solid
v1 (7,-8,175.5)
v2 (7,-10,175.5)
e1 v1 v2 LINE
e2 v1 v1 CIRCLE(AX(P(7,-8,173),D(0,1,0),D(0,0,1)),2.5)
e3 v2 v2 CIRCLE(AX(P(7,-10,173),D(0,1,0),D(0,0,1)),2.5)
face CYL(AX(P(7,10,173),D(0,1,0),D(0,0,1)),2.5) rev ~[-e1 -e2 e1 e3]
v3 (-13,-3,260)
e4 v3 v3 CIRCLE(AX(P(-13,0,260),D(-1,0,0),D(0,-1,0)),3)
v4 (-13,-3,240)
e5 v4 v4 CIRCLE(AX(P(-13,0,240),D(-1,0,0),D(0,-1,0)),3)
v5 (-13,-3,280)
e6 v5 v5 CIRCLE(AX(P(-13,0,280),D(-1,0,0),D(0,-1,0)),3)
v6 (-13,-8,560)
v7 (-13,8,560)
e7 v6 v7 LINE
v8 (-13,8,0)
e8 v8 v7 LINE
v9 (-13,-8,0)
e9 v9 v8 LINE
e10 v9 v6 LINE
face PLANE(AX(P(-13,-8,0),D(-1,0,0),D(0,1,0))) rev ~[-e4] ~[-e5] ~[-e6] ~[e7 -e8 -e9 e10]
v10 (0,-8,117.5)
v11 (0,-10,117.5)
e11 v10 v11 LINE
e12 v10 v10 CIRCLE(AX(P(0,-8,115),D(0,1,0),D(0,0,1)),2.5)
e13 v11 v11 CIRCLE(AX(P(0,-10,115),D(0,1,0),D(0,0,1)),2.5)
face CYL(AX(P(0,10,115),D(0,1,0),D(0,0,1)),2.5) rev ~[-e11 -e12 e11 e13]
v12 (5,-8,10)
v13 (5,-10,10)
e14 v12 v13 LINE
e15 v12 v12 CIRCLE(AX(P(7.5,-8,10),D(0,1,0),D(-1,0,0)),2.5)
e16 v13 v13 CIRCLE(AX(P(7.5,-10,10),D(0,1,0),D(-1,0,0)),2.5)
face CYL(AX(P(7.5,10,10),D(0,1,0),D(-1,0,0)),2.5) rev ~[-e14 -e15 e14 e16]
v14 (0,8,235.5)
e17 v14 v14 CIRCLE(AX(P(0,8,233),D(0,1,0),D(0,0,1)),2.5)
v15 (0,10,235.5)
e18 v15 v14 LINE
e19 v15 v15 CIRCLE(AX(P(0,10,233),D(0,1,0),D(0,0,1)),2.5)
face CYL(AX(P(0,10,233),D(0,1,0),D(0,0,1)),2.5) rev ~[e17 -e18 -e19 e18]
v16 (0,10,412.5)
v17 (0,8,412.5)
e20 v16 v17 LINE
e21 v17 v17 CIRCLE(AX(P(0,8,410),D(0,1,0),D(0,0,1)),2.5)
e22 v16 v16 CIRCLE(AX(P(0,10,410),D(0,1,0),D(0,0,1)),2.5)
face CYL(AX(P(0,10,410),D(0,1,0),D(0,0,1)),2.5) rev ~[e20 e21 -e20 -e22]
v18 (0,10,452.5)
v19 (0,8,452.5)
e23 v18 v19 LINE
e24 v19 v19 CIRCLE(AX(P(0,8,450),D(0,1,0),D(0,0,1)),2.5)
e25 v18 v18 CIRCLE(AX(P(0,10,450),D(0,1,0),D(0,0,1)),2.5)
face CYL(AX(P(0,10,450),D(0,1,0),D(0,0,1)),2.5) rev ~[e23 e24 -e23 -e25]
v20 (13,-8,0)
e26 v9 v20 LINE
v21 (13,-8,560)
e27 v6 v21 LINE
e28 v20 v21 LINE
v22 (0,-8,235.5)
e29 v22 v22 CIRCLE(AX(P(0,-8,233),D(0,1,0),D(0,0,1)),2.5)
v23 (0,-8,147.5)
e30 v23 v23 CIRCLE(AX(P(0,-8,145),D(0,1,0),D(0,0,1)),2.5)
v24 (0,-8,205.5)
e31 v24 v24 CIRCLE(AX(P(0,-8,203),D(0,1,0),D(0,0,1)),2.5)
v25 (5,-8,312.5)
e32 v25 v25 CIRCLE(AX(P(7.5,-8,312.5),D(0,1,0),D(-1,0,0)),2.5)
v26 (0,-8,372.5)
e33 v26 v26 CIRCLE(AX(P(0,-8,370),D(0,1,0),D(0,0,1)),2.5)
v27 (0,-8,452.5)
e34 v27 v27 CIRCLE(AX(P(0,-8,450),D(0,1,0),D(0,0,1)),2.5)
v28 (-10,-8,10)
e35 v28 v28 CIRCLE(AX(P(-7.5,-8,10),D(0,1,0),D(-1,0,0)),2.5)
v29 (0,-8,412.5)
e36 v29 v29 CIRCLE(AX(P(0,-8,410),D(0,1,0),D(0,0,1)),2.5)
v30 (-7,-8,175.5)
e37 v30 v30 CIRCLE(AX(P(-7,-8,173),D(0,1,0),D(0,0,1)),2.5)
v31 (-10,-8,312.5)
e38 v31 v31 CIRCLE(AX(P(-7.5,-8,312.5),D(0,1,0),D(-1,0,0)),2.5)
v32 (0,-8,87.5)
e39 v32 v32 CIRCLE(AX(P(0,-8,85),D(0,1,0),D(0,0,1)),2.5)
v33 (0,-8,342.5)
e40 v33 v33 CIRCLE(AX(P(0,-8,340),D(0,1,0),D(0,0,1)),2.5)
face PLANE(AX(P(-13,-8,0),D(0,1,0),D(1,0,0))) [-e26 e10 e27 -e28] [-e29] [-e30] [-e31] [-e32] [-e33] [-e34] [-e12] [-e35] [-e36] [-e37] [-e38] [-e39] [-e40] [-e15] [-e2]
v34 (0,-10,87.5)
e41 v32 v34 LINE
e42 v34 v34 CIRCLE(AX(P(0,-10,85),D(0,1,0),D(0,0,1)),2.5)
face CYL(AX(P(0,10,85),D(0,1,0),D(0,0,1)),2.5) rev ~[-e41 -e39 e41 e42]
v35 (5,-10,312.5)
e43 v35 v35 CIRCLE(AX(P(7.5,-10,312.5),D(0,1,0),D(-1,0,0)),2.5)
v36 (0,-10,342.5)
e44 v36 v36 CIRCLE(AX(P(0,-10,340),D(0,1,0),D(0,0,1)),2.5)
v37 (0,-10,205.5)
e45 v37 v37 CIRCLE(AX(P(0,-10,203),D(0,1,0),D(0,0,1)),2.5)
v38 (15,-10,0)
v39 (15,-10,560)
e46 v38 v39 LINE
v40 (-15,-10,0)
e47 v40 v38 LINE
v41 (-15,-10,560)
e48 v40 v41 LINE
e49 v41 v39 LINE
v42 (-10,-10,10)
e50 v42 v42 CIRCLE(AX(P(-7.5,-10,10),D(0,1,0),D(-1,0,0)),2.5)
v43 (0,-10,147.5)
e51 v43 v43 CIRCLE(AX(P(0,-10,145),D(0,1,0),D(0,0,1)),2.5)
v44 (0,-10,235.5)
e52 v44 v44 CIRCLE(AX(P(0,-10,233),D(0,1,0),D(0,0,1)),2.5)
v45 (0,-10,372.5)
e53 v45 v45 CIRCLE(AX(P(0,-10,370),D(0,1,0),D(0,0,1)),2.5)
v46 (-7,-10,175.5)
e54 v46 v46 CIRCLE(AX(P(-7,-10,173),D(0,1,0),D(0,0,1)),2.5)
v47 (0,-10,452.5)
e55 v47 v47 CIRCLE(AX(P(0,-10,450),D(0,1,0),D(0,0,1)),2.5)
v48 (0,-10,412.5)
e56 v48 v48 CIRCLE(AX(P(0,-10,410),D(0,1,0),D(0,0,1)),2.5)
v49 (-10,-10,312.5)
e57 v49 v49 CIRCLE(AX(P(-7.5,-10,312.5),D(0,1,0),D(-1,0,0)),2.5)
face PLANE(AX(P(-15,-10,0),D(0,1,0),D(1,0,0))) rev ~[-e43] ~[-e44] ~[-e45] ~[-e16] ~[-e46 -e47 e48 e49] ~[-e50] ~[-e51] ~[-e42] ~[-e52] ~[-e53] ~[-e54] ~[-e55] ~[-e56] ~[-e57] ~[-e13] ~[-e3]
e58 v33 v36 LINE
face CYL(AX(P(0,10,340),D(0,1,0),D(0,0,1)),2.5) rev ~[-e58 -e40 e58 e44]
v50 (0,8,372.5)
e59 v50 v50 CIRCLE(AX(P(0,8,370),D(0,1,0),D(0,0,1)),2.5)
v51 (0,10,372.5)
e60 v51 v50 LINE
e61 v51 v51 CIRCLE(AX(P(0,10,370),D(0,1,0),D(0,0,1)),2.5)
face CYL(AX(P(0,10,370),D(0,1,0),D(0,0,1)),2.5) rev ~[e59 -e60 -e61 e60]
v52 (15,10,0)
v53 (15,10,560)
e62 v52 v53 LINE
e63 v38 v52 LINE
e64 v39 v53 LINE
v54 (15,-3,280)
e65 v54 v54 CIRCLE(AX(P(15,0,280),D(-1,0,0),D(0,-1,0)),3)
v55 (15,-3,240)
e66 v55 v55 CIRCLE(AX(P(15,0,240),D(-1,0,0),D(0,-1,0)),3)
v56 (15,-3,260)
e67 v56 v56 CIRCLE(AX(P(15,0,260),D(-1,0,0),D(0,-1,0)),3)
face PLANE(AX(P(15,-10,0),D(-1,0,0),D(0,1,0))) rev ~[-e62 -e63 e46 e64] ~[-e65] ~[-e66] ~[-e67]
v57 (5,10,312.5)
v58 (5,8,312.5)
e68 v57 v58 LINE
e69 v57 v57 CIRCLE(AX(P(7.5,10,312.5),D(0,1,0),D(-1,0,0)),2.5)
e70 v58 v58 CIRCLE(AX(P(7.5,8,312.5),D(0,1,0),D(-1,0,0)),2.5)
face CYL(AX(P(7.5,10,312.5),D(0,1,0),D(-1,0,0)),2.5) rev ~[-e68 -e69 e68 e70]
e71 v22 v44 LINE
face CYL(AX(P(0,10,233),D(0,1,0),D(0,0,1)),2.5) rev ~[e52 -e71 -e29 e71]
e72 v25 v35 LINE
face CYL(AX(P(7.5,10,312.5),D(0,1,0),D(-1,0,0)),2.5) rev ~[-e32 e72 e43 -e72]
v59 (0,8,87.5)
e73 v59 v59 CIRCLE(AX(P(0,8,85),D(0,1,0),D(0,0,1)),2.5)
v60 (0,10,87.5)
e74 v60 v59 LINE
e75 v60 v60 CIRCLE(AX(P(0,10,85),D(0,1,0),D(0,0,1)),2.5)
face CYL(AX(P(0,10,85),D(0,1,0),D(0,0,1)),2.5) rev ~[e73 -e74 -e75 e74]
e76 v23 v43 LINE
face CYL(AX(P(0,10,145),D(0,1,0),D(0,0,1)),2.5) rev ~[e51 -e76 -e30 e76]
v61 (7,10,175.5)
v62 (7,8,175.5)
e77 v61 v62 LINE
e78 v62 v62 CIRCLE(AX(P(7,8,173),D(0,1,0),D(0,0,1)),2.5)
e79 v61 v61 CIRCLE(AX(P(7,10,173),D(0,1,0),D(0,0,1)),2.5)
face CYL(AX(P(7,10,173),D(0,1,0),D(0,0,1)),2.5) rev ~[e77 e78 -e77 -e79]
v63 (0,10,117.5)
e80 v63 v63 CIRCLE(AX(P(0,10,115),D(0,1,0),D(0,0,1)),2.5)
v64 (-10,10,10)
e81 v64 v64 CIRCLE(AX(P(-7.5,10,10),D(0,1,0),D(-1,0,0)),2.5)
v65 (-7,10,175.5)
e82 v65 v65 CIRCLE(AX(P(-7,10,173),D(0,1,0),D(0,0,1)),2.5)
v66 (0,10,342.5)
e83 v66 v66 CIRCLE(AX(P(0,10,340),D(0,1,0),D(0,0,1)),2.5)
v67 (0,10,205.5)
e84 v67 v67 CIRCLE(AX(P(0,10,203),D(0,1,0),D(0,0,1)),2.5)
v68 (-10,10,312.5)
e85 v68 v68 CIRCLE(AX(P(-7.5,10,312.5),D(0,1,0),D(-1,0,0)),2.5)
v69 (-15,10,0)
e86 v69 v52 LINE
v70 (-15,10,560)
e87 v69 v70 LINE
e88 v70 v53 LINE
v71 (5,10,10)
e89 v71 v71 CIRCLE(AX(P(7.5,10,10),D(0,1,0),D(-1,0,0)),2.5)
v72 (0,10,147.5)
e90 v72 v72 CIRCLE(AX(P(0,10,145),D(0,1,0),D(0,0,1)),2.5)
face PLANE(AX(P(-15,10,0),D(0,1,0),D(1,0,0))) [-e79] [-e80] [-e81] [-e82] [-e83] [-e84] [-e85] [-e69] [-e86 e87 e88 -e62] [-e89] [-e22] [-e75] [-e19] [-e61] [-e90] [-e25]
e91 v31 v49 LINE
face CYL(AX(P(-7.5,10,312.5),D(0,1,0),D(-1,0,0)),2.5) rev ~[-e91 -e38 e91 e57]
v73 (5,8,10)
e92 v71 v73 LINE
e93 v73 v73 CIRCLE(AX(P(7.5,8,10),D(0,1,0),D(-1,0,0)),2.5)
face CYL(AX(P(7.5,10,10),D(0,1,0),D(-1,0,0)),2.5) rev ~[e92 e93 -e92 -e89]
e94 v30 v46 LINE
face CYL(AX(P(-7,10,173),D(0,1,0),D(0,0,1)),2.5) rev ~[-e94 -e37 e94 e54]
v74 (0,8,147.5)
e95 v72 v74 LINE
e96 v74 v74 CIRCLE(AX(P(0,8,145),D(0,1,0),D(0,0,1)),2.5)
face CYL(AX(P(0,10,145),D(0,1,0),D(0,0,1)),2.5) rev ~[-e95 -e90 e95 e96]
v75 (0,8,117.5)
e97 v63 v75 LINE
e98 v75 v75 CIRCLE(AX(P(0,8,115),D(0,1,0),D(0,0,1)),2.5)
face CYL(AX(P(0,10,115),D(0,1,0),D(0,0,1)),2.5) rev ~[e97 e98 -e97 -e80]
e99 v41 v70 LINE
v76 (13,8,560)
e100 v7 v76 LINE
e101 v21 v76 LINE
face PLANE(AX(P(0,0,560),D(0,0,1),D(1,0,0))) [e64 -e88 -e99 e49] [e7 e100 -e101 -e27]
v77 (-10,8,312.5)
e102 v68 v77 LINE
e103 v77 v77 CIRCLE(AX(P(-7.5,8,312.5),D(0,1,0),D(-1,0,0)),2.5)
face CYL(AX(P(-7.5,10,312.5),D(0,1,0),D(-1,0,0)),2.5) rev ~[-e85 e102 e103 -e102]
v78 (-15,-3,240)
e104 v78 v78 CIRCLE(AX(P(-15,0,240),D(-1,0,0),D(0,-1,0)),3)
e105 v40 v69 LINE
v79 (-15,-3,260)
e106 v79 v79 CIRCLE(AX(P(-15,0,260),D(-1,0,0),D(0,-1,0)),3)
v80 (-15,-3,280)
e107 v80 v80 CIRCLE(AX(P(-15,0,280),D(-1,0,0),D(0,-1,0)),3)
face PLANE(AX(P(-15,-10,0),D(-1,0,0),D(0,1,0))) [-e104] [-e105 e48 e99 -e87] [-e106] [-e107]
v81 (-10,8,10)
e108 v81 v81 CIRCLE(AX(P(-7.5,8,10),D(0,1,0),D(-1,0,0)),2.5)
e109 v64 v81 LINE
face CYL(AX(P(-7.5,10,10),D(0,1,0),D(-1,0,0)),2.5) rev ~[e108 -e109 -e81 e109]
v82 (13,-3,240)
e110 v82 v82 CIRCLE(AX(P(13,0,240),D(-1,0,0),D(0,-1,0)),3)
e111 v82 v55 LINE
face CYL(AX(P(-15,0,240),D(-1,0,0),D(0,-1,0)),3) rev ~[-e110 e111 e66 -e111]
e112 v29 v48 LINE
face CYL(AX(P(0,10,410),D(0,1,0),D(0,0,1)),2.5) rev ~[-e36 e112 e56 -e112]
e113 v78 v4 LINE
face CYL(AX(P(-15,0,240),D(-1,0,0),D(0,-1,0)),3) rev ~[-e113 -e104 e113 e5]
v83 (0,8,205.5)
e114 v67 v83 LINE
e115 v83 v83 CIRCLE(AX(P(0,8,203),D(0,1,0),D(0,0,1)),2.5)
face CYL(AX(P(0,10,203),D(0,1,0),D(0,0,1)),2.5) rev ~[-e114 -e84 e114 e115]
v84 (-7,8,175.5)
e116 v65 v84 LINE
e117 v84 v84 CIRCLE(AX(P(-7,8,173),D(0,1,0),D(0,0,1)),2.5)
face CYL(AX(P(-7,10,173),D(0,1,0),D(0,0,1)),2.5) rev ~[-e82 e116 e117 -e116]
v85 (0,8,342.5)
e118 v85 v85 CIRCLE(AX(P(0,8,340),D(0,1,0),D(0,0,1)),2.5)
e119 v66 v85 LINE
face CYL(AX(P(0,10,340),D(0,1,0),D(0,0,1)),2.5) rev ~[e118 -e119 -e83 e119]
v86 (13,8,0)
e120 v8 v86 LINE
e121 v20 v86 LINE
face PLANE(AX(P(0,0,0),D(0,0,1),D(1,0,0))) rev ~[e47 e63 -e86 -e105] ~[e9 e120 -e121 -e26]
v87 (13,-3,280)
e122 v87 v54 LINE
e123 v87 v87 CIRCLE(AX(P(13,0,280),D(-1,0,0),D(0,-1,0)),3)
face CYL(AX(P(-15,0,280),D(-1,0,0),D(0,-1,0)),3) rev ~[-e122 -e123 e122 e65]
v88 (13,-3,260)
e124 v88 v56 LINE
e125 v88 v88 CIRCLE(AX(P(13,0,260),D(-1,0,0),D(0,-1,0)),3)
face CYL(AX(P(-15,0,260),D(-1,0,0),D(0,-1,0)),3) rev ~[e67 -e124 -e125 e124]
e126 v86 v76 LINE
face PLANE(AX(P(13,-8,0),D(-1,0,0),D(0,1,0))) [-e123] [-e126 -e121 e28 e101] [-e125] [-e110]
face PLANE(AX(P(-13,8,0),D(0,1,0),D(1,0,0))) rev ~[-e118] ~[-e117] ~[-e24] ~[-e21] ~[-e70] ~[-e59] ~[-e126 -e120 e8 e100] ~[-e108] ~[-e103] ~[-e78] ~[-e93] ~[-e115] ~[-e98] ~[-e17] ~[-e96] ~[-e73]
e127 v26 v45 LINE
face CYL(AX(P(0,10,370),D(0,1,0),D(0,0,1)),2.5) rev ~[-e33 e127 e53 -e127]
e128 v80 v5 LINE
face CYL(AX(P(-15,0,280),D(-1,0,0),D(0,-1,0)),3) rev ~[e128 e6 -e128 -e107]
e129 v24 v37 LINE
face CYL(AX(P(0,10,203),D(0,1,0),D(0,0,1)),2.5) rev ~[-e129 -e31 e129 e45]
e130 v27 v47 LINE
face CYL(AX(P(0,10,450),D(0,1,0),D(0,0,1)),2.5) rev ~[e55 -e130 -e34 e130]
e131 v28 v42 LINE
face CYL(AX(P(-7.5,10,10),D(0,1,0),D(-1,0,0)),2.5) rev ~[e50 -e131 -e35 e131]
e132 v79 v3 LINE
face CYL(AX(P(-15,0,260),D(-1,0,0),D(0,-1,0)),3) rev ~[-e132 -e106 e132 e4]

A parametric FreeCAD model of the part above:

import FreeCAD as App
import Part
import Sketcher

V = App.Vector
Q = App.Units.Quantity

doc = App.newDocument("Part")
body = doc.addObject("PartDesign::Body", "Body")

# Sketch on XY plane
sketch1 = doc.addObject("Sketcher::SketchObject", "Sketch")
body.addObject(sketch1)
sketch1.AttachmentSupport = (doc.XY_Plane, [""])
sketch1.MapMode = "FlatFace"
sketch1.addGeometry([
    Part.LineSegment(V(-15, 10, 0), V(-15, -10, 0)),  # 0
    Part.LineSegment(V(-15, -10, 0), V(15, -10, 0)),  # 1
    Part.LineSegment(V(15, -10, 0), V(15, 10, 0)),  # 2
    Part.LineSegment(V(15, 10, 0), V(-15, 10, 0)),  # 3
    Part.LineSegment(V(13, -8, 0), V(-13, -8, 0)),  # 4
    Part.LineSegment(V(-13, -8, 0), V(-13, 8, 0)),  # 5
    Part.LineSegment(V(-13, 8, 0), V(13, 8, 0)),  # 6
    Part.LineSegment(V(13, 8, 0), V(13, -8, 0)),  # 7
], False)
sketch1.addConstraint([
    Sketcher.Constraint("Coincident", 0, 2, 1, 1),
    Sketcher.Constraint("Coincident", 1, 2, 2, 1),
    Sketcher.Constraint("Coincident", 2, 2, 3, 1),
    Sketcher.Constraint("Coincident", 3, 2, 0, 1),
    Sketcher.Constraint("Coincident", 4, 2, 5, 1),
    Sketcher.Constraint("Coincident", 5, 2, 6, 1),
    Sketcher.Constraint("Coincident", 6, 2, 7, 1),
    Sketcher.Constraint("Coincident", 7, 2, 4, 1),
    Sketcher.Constraint("Vertical", 0),
    Sketcher.Constraint("Horizontal", 1),
    Sketcher.Constraint("Vertical", 2),
    Sketcher.Constraint("Horizontal", 3),
    Sketcher.Constraint("Horizontal", 4),
    Sketcher.Constraint("Vertical", 5),
    Sketcher.Constraint("Horizontal", 6),
    Sketcher.Constraint("Vertical", 7),
    Sketcher.Constraint("Symmetric", 0, 2, 2, 2, -1, 1),
    Sketcher.Constraint("Symmetric", 4, 2, 6, 2, -1, 1),
    Sketcher.Constraint("DistanceX", 1, 1, 1, 2, Q("30 mm")),
    Sketcher.Constraint("DistanceX", 4, 2, 4, 1, Q("26 mm")),
    Sketcher.Constraint("DistanceY", 0, 2, 0, 1, Q("20 mm")),
    Sketcher.Constraint("DistanceY", 5, 1, 5, 2, Q("16 mm")),
])
pad1 = doc.addObject("PartDesign::Pad", "Pad")
body.addObject(pad1)
pad1.Profile = sketch1
pad1.Length = 560

# Sketch on XZ plane
sketch2 = doc.addObject("Sketcher::SketchObject", "Sketch001")
body.addObject(sketch2)
sketch2.AttachmentSupport = (doc.XZ_Plane, [""])
sketch2.MapMode = "FlatFace"
sketch2.AttachmentOffset = App.Placement(V(0, 0, -10), App.Rotation())
sketch2.addGeometry([
    Part.Circle(V(-7.5, 10, 0), V(0, 0, 1), 2.5),
    Part.Circle(V(7.5, 10, 0), V(0, 0, 1), 2.5),
], False)
sketch2.addConstraint([
    Sketcher.Constraint("Equal", 0, 1),
    Sketcher.Constraint("Symmetric", 0, 3, 1, 3, -2),
    Sketcher.Constraint("Diameter", 0, Q("5 mm")),
    Sketcher.Constraint("DistanceY", -1, 1, 0, 3, Q("10 mm")),
    Sketcher.Constraint("DistanceX", 0, 3, 1, 3, Q("15 mm")),
])
pocket1 = doc.addObject("PartDesign::Pocket", "Pocket")
body.addObject(pocket1)
pocket1.Profile = sketch2
pocket1.Type = "ThroughAll"
pocket1.Reversed = True

# Sketch on XZ plane
sketch3 = doc.addObject("Sketcher::SketchObject", "Sketch002")
body.addObject(sketch3)
sketch3.AttachmentSupport = (doc.XZ_Plane, [""])
sketch3.MapMode = "FlatFace"
sketch3.AttachmentOffset = App.Placement(V(0, 0, -10), App.Rotation())
sketch3.addGeometry([
    Part.Circle(V(-7.5, 312.5, 0), V(0, 0, 1), 2.5),
    Part.Circle(V(7.5, 312.5, 0), V(0, 0, 1), 2.5),
], False)
sketch3.addConstraint([
    Sketcher.Constraint("Equal", 0, 1),
    Sketcher.Constraint("Symmetric", 0, 3, 1, 3, -2),
    Sketcher.Constraint("Diameter", 0, Q("5 mm")),
    Sketcher.Constraint("DistanceX", 0, 3, 1, 3, Q("15 mm")),
    Sketcher.Constraint("DistanceY", -1, 1, 0, 3, Q("312.5 mm")),
])
pocket2 = doc.addObject("PartDesign::Pocket", "Pocket001")
body.addObject(pocket2)
pocket2.Profile = sketch3
pocket2.Type = "ThroughAll"
pocket2.Reversed = True

# Sketch on YZ plane
sketch4 = doc.addObject("Sketcher::SketchObject", "Sketch003")
body.addObject(sketch4)
sketch4.AttachmentSupport = (doc.YZ_Plane, [""])
sketch4.MapMode = "FlatFace"
sketch4.AttachmentOffset = App.Placement(V(0, 0, -15), App.Rotation())
sketch4.addGeometry([
    Part.Circle(V(0, 260, 0), V(0, 0, 1), 3),
    Part.Circle(V(0, 280, 0), V(0, 0, 1), 3),
    Part.Circle(V(0, 240, 0), V(0, 0, 1), 3),
], False)
sketch4.addConstraint([
    Sketcher.Constraint("Equal", 0, 1),
    Sketcher.Constraint("Equal", 1, 2),
    Sketcher.Constraint("PointOnObject", 0, 3, -2),
    Sketcher.Constraint("PointOnObject", 1, 3, -2),
    Sketcher.Constraint("PointOnObject", 2, 3, -2),
    Sketcher.Constraint("Diameter", 0, Q("6 mm")),
    Sketcher.Constraint("DistanceY", -1, 1, 0, 3, Q("260 mm")),
    Sketcher.Constraint("DistanceY", -1, 1, 1, 3, Q("280 mm")),
    Sketcher.Constraint("DistanceY", -1, 1, 2, 3, Q("240 mm")),
])
pocket3 = doc.addObject("PartDesign::Pocket", "Pocket002")
body.addObject(pocket3)
pocket3.Profile = sketch4
pocket3.Length = 30
pocket3.Reversed = True

# Sketch on XZ plane
sketch5 = doc.addObject("Sketcher::SketchObject", "Sketch004")
body.addObject(sketch5)
sketch5.AttachmentSupport = (doc.XZ_Plane, [""])
sketch5.MapMode = "FlatFace"
sketch5.AttachmentOffset = App.Placement(V(0, 0, -10), App.Rotation())
sketch5.addGeometry([
    Part.Circle(V(0, 370, 0), V(0, 0, 1), 2.5),
    Part.Circle(V(0, 450, 0), V(0, 0, 1), 2.5),
    Part.Circle(V(0, 410, 0), V(0, 0, 1), 2.5),
    Part.Circle(V(0, 340, 0), V(0, 0, 1), 2.5),
], False)
sketch5.addConstraint([
    Sketcher.Constraint("Equal", 0, 1),
    Sketcher.Constraint("Equal", 1, 2),
    Sketcher.Constraint("Equal", 2, 3),
    Sketcher.Constraint("PointOnObject", 0, 3, -2),
    Sketcher.Constraint("PointOnObject", 1, 3, -2),
    Sketcher.Constraint("PointOnObject", 2, 3, -2),
    Sketcher.Constraint("PointOnObject", 3, 3, -2),
    Sketcher.Constraint("Diameter", 0, Q("5 mm")),
    Sketcher.Constraint("DistanceY", -1, 1, 0, 3, Q("370 mm")),
    Sketcher.Constraint("DistanceY", -1, 1, 1, 3, Q("450 mm")),
    Sketcher.Constraint("DistanceY", -1, 1, 2, 3, Q("410 mm")),
    Sketcher.Constraint("DistanceY", -1, 1, 3, 3, Q("340 mm")),
])
pocket4 = doc.addObject("PartDesign::Pocket", "Pocket003")
body.addObject(pocket4)
pocket4.Profile = sketch5
pocket4.Length = 30
pocket4.Reversed = True

# Sketch on XZ plane
sketch6 = doc.addObject("Sketcher::SketchObject", "Sketch005")
body.addObject(sketch6)
sketch6.AttachmentSupport = (doc.XZ_Plane, [""])
sketch6.MapMode = "FlatFace"
sketch6.AttachmentOffset = App.Placement(V(0, 0, -10), App.Rotation())
sketch6.addGeometry([
    Part.Circle(V(-7, 173, 0), V(0, 0, 1), 2.5),
    Part.Circle(V(7, 173, 0), V(0, 0, 1), 2.5),
], False)
sketch6.addConstraint([
    Sketcher.Constraint("Equal", 0, 1),
    Sketcher.Constraint("Symmetric", 0, 3, 1, 3, -2),
    Sketcher.Constraint("Diameter", 0, Q("5 mm")),
    Sketcher.Constraint("DistanceX", 0, 3, -1, 1, Q("7 mm")),
    Sketcher.Constraint("DistanceY", -1, 1, 0, 3, Q("173 mm")),
])
pocket5 = doc.addObject("PartDesign::Pocket", "Pocket004")
body.addObject(pocket5)
pocket5.Profile = sketch6
pocket5.Length = 30
pocket5.Reversed = True

# Sketch on XZ plane
sketch7 = doc.addObject("Sketcher::SketchObject", "Sketch006")
body.addObject(sketch7)
sketch7.AttachmentSupport = (doc.XZ_Plane, [""])
sketch7.MapMode = "FlatFace"
sketch7.AttachmentOffset = App.Placement(V(0, 0, -10), App.Rotation())
sketch7.addGeometry([
    Part.Circle(V(0, 85, 0), V(0, 0, 1), 2.5),  # 0
    Part.Circle(V(0, 115, 0), V(0, 0, 1), 2.5),  # 1
    Part.Circle(V(0, 203, 0), V(0, 0, 1), 2.5),  # 2
    Part.Circle(V(0, 233, 0), V(0, 0, 1), 2.5),  # 3
    Part.Circle(V(0, 145, 0), V(0, 0, 1), 2.5),  # 4
], False)
sketch7.addConstraint([
    Sketcher.Constraint("Equal", 0, 1),
    Sketcher.Constraint("Equal", 1, 2),
    Sketcher.Constraint("Equal", 2, 3),
    Sketcher.Constraint("Equal", 3, 4),
    Sketcher.Constraint("PointOnObject", 0, 3, -2),
    Sketcher.Constraint("PointOnObject", 1, 3, -2),
    Sketcher.Constraint("PointOnObject", 2, 3, -2),
    Sketcher.Constraint("PointOnObject", 3, 3, -2),
    Sketcher.Constraint("PointOnObject", 4, 3, -2),
    Sketcher.Constraint("Diameter", 0, Q("5 mm")),
    Sketcher.Constraint("DistanceY", -1, 1, 0, 3, Q("85 mm")),
    Sketcher.Constraint("DistanceY", -1, 1, 1, 3, Q("115 mm")),
    Sketcher.Constraint("DistanceY", -1, 1, 2, 3, Q("203 mm")),
    Sketcher.Constraint("DistanceY", -1, 1, 3, 3, Q("233 mm")),
    Sketcher.Constraint("DistanceY", -1, 1, 4, 3, Q("145 mm")),
])
pocket6 = doc.addObject("PartDesign::Pocket", "Pocket005")
body.addObject(pocket6)
pocket6.Profile = sketch7
pocket6.Length = 30
pocket6.Reversed = True

doc.recompute()
